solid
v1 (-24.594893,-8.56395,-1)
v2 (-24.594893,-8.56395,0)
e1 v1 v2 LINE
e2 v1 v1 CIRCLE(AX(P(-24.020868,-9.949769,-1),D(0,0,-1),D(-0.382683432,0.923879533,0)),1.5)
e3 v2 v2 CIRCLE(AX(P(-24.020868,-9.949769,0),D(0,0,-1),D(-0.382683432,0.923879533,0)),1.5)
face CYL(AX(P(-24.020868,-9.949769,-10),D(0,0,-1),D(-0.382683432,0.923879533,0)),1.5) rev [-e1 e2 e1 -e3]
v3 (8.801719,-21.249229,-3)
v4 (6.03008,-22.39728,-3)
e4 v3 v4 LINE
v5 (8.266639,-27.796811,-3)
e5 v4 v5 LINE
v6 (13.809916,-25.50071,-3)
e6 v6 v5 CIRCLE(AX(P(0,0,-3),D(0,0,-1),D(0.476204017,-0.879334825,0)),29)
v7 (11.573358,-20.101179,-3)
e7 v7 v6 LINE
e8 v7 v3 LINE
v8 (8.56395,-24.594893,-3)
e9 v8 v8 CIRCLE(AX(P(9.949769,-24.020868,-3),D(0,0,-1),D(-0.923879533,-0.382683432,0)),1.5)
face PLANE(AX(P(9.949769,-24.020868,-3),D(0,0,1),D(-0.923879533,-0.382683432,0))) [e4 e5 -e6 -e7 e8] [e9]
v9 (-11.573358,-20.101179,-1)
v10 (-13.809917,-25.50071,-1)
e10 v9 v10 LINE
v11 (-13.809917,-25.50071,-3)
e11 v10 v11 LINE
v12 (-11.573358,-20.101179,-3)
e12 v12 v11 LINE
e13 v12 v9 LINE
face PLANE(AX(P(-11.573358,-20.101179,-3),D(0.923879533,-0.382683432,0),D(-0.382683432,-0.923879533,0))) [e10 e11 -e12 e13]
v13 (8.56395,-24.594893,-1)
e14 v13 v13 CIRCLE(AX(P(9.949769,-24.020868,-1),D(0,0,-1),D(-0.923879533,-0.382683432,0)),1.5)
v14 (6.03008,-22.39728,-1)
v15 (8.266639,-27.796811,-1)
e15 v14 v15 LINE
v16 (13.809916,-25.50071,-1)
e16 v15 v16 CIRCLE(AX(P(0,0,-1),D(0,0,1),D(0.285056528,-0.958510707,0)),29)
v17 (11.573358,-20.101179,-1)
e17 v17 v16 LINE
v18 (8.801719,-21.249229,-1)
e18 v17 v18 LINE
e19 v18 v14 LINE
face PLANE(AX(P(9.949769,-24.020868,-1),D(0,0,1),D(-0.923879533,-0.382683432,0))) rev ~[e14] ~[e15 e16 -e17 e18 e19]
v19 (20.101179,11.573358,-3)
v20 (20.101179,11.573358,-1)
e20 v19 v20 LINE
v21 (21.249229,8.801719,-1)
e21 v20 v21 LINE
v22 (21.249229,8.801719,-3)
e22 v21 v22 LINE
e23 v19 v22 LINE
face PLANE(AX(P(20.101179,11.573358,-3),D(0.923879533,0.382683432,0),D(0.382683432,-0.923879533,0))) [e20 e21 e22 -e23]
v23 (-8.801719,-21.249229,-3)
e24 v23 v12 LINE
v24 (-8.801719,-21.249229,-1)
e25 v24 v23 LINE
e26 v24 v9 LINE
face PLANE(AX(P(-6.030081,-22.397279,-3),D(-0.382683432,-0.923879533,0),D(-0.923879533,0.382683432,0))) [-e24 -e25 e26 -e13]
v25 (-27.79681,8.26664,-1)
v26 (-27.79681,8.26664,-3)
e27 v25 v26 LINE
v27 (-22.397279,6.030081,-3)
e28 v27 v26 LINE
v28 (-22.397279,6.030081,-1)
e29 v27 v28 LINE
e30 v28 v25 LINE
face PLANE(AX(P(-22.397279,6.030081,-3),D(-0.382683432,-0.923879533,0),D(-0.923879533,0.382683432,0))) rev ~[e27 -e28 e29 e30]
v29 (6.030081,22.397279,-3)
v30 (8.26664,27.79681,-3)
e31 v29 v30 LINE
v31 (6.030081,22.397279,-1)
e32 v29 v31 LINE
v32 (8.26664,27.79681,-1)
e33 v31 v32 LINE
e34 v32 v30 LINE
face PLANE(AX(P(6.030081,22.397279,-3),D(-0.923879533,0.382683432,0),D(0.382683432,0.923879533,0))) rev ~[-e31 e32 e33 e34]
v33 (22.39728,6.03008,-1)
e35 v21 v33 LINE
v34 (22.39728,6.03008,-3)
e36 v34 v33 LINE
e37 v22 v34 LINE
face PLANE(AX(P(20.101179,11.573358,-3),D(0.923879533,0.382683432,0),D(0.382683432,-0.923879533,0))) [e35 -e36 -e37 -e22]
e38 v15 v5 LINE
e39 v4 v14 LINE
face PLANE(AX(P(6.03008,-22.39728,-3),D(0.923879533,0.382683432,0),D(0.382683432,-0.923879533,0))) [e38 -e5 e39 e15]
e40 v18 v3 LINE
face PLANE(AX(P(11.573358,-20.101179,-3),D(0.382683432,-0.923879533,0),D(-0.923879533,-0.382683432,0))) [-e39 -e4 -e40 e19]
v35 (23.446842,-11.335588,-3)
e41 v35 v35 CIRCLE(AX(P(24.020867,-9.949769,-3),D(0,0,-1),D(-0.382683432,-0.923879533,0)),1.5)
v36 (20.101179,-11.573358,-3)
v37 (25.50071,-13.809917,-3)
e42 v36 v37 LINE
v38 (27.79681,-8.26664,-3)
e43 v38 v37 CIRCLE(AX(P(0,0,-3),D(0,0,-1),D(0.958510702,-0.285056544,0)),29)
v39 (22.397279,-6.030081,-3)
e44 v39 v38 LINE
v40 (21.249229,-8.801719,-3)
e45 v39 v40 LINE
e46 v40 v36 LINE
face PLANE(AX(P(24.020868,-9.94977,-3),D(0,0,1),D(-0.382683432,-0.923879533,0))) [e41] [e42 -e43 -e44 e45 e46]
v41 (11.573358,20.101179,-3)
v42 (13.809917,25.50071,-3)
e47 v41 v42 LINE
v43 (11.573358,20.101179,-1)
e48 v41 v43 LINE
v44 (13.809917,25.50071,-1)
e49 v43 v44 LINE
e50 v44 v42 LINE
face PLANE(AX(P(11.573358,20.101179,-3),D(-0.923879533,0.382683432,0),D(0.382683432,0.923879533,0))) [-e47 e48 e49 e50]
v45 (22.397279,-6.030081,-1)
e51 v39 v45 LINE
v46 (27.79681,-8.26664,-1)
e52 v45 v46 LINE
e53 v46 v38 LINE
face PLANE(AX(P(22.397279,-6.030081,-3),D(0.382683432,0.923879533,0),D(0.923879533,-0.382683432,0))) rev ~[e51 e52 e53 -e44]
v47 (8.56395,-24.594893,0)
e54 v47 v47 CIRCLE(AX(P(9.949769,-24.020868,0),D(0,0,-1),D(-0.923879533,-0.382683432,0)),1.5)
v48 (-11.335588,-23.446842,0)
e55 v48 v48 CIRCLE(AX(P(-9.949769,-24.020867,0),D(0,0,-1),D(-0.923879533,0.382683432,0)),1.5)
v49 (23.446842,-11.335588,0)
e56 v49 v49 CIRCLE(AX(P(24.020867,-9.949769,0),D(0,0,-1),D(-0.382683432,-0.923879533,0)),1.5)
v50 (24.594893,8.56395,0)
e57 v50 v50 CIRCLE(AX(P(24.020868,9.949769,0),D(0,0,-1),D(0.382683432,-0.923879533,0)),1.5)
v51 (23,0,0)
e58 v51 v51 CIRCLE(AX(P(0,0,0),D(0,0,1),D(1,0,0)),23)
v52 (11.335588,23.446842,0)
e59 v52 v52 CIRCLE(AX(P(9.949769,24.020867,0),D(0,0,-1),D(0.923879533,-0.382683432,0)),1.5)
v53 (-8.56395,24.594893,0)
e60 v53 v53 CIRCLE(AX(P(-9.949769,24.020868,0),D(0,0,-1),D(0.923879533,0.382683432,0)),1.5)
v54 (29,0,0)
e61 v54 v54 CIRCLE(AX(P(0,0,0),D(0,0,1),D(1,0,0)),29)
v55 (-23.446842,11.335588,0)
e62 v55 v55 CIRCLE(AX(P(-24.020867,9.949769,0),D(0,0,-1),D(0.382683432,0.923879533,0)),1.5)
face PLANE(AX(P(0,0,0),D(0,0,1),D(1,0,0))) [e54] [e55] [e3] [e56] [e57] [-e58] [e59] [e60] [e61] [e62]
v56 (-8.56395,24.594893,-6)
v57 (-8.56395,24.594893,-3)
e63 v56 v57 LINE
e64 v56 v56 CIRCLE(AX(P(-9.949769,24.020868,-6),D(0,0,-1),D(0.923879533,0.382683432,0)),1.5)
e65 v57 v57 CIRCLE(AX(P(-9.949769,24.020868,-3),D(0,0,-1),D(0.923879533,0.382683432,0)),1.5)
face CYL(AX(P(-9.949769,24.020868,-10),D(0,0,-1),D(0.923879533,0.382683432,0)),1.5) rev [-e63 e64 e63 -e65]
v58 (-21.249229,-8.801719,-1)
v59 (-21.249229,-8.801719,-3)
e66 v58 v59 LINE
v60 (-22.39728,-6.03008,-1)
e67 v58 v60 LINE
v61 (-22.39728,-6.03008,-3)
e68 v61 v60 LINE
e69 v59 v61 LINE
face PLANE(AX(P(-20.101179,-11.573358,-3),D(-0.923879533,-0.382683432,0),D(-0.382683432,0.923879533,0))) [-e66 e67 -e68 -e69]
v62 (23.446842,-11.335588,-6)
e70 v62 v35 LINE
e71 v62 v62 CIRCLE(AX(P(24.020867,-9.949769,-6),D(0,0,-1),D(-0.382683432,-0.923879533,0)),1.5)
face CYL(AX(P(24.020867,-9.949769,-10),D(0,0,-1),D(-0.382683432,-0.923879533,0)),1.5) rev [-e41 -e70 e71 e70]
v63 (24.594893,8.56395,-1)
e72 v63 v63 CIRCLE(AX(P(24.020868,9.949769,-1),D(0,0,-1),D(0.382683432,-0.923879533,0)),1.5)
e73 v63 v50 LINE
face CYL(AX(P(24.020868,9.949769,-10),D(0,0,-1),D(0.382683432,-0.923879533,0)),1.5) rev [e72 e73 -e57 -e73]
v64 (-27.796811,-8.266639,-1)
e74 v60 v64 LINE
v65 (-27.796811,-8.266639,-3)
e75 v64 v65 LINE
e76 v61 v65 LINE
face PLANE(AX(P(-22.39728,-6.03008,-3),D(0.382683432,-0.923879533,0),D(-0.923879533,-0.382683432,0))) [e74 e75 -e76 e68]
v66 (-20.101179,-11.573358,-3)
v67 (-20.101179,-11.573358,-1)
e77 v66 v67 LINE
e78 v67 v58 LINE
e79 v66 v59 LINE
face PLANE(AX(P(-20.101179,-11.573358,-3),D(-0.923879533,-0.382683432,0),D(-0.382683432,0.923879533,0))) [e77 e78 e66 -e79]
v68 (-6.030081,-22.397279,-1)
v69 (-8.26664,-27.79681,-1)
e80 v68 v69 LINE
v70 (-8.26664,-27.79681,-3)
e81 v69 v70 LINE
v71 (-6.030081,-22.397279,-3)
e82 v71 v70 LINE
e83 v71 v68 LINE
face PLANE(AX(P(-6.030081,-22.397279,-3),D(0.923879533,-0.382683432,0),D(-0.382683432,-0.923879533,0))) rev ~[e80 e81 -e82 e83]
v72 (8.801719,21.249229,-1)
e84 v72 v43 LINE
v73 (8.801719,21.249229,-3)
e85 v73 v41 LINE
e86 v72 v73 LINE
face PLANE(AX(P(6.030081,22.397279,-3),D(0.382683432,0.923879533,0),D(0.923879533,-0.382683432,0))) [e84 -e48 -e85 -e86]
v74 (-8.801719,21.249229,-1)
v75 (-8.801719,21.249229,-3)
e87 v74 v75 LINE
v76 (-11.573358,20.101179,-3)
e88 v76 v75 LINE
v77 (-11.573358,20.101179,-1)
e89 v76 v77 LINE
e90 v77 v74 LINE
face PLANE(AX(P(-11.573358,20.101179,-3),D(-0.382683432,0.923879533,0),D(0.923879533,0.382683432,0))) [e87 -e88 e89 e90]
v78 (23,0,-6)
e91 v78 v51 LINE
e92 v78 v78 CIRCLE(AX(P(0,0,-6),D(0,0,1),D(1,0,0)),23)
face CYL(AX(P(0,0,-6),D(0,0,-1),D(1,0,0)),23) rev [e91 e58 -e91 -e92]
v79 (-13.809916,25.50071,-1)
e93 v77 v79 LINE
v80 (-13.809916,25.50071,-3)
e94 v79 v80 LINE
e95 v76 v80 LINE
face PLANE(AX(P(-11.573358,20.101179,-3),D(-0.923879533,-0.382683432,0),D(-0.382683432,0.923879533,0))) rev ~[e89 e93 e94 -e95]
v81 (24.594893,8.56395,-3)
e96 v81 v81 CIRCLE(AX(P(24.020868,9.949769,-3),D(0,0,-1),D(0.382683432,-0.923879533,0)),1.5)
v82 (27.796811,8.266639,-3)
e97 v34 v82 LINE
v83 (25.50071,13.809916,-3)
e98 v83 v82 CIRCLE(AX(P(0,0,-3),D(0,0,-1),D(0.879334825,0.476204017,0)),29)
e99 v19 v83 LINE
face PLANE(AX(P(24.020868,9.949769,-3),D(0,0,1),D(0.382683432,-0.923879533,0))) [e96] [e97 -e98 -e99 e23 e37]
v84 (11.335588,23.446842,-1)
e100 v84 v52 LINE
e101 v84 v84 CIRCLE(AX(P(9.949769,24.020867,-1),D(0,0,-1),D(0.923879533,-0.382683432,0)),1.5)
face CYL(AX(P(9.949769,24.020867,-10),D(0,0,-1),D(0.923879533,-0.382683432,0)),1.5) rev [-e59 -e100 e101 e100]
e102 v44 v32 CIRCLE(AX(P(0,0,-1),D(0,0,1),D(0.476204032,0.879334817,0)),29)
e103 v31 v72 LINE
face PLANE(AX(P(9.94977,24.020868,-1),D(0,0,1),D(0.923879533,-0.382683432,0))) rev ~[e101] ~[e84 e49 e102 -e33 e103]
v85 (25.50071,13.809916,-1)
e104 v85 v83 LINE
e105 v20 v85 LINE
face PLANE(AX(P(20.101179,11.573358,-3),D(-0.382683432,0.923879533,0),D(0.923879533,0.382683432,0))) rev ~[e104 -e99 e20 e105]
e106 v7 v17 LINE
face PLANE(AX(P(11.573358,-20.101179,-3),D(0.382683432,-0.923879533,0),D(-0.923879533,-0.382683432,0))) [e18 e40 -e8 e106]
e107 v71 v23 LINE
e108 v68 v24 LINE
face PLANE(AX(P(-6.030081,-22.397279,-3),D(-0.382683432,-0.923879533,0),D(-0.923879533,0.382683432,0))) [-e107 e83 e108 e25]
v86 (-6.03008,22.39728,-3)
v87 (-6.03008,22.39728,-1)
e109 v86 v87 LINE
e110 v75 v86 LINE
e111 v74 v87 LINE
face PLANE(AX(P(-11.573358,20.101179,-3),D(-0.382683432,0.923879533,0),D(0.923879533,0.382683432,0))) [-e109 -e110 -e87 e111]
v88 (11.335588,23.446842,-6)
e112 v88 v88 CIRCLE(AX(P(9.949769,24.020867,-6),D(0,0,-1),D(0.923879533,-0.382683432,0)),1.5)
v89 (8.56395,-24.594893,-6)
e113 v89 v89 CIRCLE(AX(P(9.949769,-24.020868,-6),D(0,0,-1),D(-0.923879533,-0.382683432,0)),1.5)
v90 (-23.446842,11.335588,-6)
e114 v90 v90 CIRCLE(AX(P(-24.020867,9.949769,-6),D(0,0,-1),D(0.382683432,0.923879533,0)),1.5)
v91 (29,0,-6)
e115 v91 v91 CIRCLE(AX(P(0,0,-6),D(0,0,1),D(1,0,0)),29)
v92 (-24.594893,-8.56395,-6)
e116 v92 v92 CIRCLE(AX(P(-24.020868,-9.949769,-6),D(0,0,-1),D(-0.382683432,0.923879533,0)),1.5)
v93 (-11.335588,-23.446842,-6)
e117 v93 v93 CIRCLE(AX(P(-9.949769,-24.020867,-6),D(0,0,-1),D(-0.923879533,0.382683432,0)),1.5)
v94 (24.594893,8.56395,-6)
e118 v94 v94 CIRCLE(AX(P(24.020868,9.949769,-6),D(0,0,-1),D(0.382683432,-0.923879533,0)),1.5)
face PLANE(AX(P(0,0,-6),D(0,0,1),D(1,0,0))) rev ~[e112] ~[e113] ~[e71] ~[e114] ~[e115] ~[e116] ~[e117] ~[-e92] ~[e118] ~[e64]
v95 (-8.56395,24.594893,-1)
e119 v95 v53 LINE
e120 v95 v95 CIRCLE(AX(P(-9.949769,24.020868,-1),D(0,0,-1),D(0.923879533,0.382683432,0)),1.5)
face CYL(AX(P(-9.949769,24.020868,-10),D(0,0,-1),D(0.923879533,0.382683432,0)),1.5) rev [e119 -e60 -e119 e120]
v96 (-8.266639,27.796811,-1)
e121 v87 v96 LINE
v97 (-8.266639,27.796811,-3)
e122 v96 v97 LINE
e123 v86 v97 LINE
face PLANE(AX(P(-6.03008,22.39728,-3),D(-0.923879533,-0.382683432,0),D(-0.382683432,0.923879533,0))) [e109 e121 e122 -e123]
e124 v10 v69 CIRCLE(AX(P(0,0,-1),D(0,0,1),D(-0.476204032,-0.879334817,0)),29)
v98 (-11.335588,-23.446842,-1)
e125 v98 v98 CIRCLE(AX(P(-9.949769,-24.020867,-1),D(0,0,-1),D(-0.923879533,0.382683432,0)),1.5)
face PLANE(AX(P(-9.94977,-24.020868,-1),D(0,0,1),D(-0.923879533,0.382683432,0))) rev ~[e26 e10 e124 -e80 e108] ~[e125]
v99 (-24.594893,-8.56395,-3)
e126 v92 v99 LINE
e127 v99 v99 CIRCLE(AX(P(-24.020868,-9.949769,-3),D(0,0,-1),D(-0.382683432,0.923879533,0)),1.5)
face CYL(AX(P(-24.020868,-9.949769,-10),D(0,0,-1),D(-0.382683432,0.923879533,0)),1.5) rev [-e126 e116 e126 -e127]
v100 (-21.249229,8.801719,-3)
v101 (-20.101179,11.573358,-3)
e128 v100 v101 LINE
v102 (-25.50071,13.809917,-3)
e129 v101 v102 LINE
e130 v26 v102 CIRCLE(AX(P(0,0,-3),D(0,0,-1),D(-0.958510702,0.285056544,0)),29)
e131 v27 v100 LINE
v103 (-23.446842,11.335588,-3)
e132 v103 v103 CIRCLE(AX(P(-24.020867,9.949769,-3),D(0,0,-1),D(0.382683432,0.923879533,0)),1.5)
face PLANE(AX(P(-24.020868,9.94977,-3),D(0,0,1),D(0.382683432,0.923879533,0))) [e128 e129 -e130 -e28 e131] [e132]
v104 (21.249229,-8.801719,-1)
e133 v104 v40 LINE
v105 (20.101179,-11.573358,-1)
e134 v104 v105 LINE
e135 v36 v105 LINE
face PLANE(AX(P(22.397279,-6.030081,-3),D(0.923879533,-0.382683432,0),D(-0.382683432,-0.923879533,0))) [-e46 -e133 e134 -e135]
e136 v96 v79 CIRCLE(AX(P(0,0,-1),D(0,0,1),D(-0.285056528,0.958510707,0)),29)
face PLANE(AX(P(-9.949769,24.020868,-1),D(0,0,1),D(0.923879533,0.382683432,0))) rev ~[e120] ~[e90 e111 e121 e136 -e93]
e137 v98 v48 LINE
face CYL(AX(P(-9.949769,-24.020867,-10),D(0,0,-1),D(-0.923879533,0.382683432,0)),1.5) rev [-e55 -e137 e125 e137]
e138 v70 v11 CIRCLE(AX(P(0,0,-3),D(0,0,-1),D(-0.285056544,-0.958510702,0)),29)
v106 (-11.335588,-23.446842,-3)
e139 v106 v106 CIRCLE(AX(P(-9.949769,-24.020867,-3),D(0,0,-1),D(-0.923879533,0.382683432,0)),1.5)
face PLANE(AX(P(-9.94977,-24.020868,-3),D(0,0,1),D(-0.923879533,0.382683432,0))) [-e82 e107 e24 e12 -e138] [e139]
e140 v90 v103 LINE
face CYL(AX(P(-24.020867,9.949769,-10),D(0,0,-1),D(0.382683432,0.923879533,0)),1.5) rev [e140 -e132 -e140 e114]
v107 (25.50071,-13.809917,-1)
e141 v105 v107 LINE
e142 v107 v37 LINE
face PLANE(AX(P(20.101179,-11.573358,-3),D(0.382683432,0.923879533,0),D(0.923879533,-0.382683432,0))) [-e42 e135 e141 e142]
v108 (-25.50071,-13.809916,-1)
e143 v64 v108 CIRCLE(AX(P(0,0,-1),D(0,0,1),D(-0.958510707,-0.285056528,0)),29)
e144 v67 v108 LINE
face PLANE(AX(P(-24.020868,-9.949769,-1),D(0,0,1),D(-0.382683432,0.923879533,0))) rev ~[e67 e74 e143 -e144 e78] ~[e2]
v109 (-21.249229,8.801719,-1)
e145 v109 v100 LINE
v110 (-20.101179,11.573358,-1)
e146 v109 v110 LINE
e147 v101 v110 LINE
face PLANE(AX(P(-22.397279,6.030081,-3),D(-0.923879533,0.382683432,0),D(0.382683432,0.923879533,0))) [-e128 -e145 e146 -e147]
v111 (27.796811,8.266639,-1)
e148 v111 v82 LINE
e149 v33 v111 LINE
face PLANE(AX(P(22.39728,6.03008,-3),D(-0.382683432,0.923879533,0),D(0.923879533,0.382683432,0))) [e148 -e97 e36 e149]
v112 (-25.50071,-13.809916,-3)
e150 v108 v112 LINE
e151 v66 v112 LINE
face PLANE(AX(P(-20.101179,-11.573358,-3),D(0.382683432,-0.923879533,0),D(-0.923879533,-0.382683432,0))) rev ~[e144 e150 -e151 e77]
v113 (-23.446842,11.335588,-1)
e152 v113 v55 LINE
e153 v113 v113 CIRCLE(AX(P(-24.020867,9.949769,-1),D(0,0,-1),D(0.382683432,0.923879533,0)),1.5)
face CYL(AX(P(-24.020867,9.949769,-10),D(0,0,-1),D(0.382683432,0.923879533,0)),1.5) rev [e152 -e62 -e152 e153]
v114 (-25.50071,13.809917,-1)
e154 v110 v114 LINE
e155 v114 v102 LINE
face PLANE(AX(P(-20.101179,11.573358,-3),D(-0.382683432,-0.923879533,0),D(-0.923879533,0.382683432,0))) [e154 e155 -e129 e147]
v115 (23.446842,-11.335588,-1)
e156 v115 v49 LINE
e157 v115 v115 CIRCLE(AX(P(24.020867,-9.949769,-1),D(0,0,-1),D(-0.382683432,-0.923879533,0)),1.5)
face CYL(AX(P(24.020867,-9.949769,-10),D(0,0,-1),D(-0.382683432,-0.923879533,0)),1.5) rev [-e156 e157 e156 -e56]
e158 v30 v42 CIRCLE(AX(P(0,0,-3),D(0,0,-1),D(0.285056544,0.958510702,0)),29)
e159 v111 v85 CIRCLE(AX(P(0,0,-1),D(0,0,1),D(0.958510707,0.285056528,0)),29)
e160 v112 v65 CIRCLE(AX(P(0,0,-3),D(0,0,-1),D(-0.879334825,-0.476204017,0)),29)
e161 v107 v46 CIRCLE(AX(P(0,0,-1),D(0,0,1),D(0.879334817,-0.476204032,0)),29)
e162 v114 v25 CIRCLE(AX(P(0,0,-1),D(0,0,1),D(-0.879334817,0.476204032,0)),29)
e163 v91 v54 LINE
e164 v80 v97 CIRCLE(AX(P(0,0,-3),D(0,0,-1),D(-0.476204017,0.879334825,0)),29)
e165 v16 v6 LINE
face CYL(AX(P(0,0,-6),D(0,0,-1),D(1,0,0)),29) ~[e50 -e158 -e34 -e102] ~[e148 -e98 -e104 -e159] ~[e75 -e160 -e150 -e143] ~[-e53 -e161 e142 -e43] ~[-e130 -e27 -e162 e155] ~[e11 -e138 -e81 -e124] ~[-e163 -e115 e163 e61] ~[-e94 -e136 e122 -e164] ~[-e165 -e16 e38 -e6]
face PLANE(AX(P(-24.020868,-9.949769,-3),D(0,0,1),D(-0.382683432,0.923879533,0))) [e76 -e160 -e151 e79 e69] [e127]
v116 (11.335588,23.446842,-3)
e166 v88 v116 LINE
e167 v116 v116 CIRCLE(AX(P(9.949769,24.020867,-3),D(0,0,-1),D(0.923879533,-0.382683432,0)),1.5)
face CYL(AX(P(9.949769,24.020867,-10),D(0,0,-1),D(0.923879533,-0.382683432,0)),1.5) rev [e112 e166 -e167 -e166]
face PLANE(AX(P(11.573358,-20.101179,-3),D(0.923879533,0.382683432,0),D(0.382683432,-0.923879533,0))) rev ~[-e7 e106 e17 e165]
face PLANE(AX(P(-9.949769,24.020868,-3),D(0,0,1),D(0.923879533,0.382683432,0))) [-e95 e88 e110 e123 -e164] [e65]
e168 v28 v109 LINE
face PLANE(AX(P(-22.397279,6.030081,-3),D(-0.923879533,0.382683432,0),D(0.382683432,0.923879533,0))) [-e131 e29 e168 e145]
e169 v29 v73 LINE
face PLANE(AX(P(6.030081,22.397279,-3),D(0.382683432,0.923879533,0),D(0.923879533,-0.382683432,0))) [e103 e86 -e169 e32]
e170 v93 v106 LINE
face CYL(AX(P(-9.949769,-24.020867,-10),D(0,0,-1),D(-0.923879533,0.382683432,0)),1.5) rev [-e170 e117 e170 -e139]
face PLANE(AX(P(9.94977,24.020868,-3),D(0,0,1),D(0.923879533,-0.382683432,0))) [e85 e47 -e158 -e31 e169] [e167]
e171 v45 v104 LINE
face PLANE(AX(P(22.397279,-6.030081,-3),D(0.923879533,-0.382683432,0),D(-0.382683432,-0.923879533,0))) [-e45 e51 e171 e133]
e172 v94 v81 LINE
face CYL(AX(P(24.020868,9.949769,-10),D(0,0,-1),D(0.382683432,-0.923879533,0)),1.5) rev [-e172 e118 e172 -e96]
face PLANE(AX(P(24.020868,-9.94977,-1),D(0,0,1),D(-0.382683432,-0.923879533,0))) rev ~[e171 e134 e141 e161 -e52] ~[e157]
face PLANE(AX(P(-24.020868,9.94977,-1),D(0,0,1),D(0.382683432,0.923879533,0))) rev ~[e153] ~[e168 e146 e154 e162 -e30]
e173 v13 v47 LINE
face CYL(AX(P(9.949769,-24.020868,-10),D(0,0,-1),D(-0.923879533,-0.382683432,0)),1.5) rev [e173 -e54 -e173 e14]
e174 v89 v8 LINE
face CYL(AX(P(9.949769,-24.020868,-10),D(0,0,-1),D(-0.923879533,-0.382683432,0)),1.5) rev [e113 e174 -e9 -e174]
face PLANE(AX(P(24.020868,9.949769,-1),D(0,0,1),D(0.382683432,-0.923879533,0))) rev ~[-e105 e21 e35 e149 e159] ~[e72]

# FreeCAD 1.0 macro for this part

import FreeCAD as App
import Part
import Sketcher


def add_polygon(sketch, points):
    """Adds a closed chain of lines whose ends are joined by coincident constraints."""
    first, n = sketch.GeometryCount, len(points)
    for a, b in zip(points, points[1:] + points[:1]):
        sketch.addGeometry(Part.LineSegment(App.Vector(*a, 0), App.Vector(*b, 0)), False)
    for i in range(n):
        sketch.addConstraint(Sketcher.Constraint("Coincident", first + i, 2, first + (i + 1) % n, 1))

doc = App.newDocument("Part")
body = doc.addObject("PartDesign::Body", "Body")

# Sketch on XY plane
sketch1 = doc.addObject("Sketcher::SketchObject", "Sketch")
body.addObject(sketch1)
sketch1.AttachmentSupport = (doc.XY_Plane, [""])
sketch1.MapMode = "FlatFace"
sketch1.AttachmentOffset = App.Placement(App.Vector(0, 0, -13), App.Rotation())
add_polygon(sketch1, [(-29, -3), (-23, -3), (-23, 3), (-29, 3)])  # lines 0-3
sketch1.addConstraint(Sketcher.Constraint("Horizontal", 0))
sketch1.addConstraint(Sketcher.Constraint("Vertical", 1))
sketch1.addConstraint(Sketcher.Constraint("Horizontal", 2))
sketch1.addConstraint(Sketcher.Constraint("Vertical", 3))
sketch1.addConstraint(Sketcher.Constraint("Equal", 2, 1))
sketch1.addConstraint(Sketcher.Constraint("DistanceX", 0, 1, 0, 2, 6.0))
sketch1.addConstraint(Sketcher.Constraint("DistanceX", 0, 2, -1, 1, 23.0))
sketch1.addConstraint(Sketcher.Constraint("DistanceY", 0, 2, -1, 1, 3.0))
pad1 = doc.addObject("PartDesign::Pad", "Pad")
body.addObject(pad1)
pad1.Profile = sketch1
pad1.Length = 2
body2 = doc.addObject("PartDesign::Body", "Body001")

# Sketch on XY plane
sketch2 = doc.addObject("Sketcher::SketchObject", "Sketch001")
body2.addObject(sketch2)
sketch2.AttachmentSupport = (doc.getObject("XY_Plane001"), [""])
sketch2.MapMode = "FlatFace"
add_polygon(sketch2, [(0, 6), (0, 0), (6, 0), (6, 6)])  # lines 0-3
sketch2.addConstraint(Sketcher.Constraint("Vertical", 0))
sketch2.addConstraint(Sketcher.Constraint("Horizontal", 1))
sketch2.addConstraint(Sketcher.Constraint("Vertical", 2))
sketch2.addConstraint(Sketcher.Constraint("Horizontal", 3))
sketch2.addConstraint(Sketcher.Constraint("Coincident", 0, 2, -1, 1))
sketch2.addConstraint(Sketcher.Constraint("Equal", 3, 0))
sketch2.addConstraint(Sketcher.Constraint("DistanceX", 1, 1, 1, 2, 6.0))
pad2 = doc.addObject("PartDesign::Pad", "Pad001")
body2.addObject(pad2)
pad2.Profile = sketch2
pad2.Length = 2
body3 = doc.addObject("PartDesign::Body", "Body002")
doc.recompute()

body2.Placement = App.Placement(App.Vector(-14.142136, -18.384776, -13), App.Rotation(App.Vector(0, 0, 1), 135))
boolean = doc.addObject("PartDesign::Boolean", "Boolean")
body3.addObject(boolean)
boolean.Type = "Fuse"
boolean.addObjects([body2])
body4 = doc.addObject("PartDesign::Body", "Body003")

# Sketch on XY plane
sketch3 = doc.addObject("Sketcher::SketchObject", "Sketch002")
body4.addObject(sketch3)
sketch3.AttachmentSupport = (doc.getObject("XY_Plane003"), [""])
sketch3.MapMode = "FlatFace"
sketch3.AttachmentOffset = App.Placement(App.Vector(0, 0, -13), App.Rotation())
add_polygon(sketch3, [(3, -29), (3, -23), (-3, -23), (-3, -29)])  # lines 0-3
sketch3.addConstraint(Sketcher.Constraint("Vertical", 0))
sketch3.addConstraint(Sketcher.Constraint("Horizontal", 1))
sketch3.addConstraint(Sketcher.Constraint("Vertical", 2))
sketch3.addConstraint(Sketcher.Constraint("Horizontal", 3))
sketch3.addConstraint(Sketcher.Constraint("Equal", 3, 0))
sketch3.addConstraint(Sketcher.Constraint("DistanceX", 1, 2, 1, 1, 6.0))
sketch3.addConstraint(Sketcher.Constraint("DistanceX", -1, 1, 0, 2, 3.0))
sketch3.addConstraint(Sketcher.Constraint("DistanceY", 0, 2, -1, 1, 23.0))
pad3 = doc.addObject("PartDesign::Pad", "Pad002")
body4.addObject(pad3)
pad3.Profile = sketch3
pad3.Length = 2
body5 = doc.addObject("PartDesign::Body", "Body004")

# Sketch on XY plane
sketch4 = doc.addObject("Sketcher::SketchObject", "Sketch003")
body5.addObject(sketch4)
sketch4.AttachmentSupport = (doc.getObject("XY_Plane004"), [""])
sketch4.MapMode = "FlatFace"
add_polygon(sketch4, [(0, 6), (0, 0), (6, 0), (6, 6)])  # lines 0-3
sketch4.addConstraint(Sketcher.Constraint("Vertical", 0))
sketch4.addConstraint(Sketcher.Constraint("Horizontal", 1))
sketch4.addConstraint(Sketcher.Constraint("Vertical", 2))
sketch4.addConstraint(Sketcher.Constraint("Horizontal", 3))
sketch4.addConstraint(Sketcher.Constraint("Coincident", 0, 2, -1, 1))
sketch4.addConstraint(Sketcher.Constraint("Equal", 3, 0))
sketch4.addConstraint(Sketcher.Constraint("DistanceX", 1, 1, 1, 2, 6.0))
pad4 = doc.addObject("PartDesign::Pad", "Pad003")
body5.addObject(pad4)
pad4.Profile = sketch4
pad4.Length = 2
body6 = doc.addObject("PartDesign::Body", "Body005")
doc.recompute()

body5.Placement = App.Placement(App.Vector(18.384776, -14.142136, -13), App.Rotation(App.Vector(0, 0, 1), 225))
boolean2 = doc.addObject("PartDesign::Boolean", "Boolean001")
body6.addObject(boolean2)
boolean2.Type = "Fuse"
boolean2.addObjects([body5])
body7 = doc.addObject("PartDesign::Body", "Body006")

# Sketch on XY plane
sketch5 = doc.addObject("Sketcher::SketchObject", "Sketch004")
body7.addObject(sketch5)
sketch5.AttachmentSupport = (doc.getObject("XY_Plane006"), [""])
sketch5.MapMode = "FlatFace"
sketch5.AttachmentOffset = App.Placement(App.Vector(0, 0, -13), App.Rotation())
add_polygon(sketch5, [(29, 3), (23, 3), (23, -3), (29, -3)])  # lines 0-3
sketch5.addConstraint(Sketcher.Constraint("Horizontal", 0))
sketch5.addConstraint(Sketcher.Constraint("Vertical", 1))
sketch5.addConstraint(Sketcher.Constraint("Horizontal", 2))
sketch5.addConstraint(Sketcher.Constraint("Vertical", 3))
sketch5.addConstraint(Sketcher.Constraint("Equal", 2, 1))
sketch5.addConstraint(Sketcher.Constraint("DistanceX", 0, 2, 0, 1, 6.0))
sketch5.addConstraint(Sketcher.Constraint("DistanceX", -1, 1, 0, 2, 23.0))
sketch5.addConstraint(Sketcher.Constraint("DistanceY", -1, 1, 0, 2, 3.0))
pad5 = doc.addObject("PartDesign::Pad", "Pad004")
body7.addObject(pad5)
pad5.Profile = sketch5
pad5.Length = 2
body8 = doc.addObject("PartDesign::Body", "Body007")

# Sketch on XY plane
sketch6 = doc.addObject("Sketcher::SketchObject", "Sketch005")
body8.addObject(sketch6)
sketch6.AttachmentSupport = (doc.getObject("XY_Plane007"), [""])
sketch6.MapMode = "FlatFace"
add_polygon(sketch6, [(0, 6), (0, 0), (6, 0), (6, 6)])  # lines 0-3
sketch6.addConstraint(Sketcher.Constraint("Vertical", 0))
sketch6.addConstraint(Sketcher.Constraint("Horizontal", 1))
sketch6.addConstraint(Sketcher.Constraint("Vertical", 2))
sketch6.addConstraint(Sketcher.Constraint("Horizontal", 3))
sketch6.addConstraint(Sketcher.Constraint("Coincident", 0, 2, -1, 1))
sketch6.addConstraint(Sketcher.Constraint("Equal", 3, 0))
sketch6.addConstraint(Sketcher.Constraint("DistanceX", 1, 1, 1, 2, 6.0))
pad6 = doc.addObject("PartDesign::Pad", "Pad005")
body8.addObject(pad6)
pad6.Profile = sketch6
pad6.Length = 2
body9 = doc.addObject("PartDesign::Body", "Body008")
doc.recompute()

body8.Placement = App.Placement(App.Vector(14.142136, 18.384776, -13), App.Rotation(App.Vector(0, 0, -1), 45))
boolean3 = doc.addObject("PartDesign::Boolean", "Boolean002")
body9.addObject(boolean3)
boolean3.Type = "Fuse"
boolean3.addObjects([body8])
body10 = doc.addObject("PartDesign::Body", "Body009")

# Sketch on XY plane
sketch7 = doc.addObject("Sketcher::SketchObject", "Sketch006")
body10.addObject(sketch7)
sketch7.AttachmentSupport = (doc.getObject("XY_Plane009"), [""])
sketch7.MapMode = "FlatFace"
sketch7.AttachmentOffset = App.Placement(App.Vector(0, 0, -13), App.Rotation())
add_polygon(sketch7, [(-3, 29), (-3, 23), (3, 23), (3, 29)])  # lines 0-3
sketch7.addConstraint(Sketcher.Constraint("Vertical", 0))
sketch7.addConstraint(Sketcher.Constraint("Horizontal", 1))
sketch7.addConstraint(Sketcher.Constraint("Vertical", 2))
sketch7.addConstraint(Sketcher.Constraint("Horizontal", 3))
sketch7.addConstraint(Sketcher.Constraint("Equal", 3, 0))
sketch7.addConstraint(Sketcher.Constraint("DistanceX", 1, 1, 1, 2, 6.0))
sketch7.addConstraint(Sketcher.Constraint("DistanceX", 0, 2, -1, 1, 3.0))
sketch7.addConstraint(Sketcher.Constraint("DistanceY", -1, 1, 0, 2, 23.0))
pad7 = doc.addObject("PartDesign::Pad", "Pad006")
body10.addObject(pad7)
pad7.Profile = sketch7
pad7.Length = 2
body11 = doc.addObject("PartDesign::Body", "Body010")

# Sketch on XY plane
sketch8 = doc.addObject("Sketcher::SketchObject", "Sketch007")
body11.addObject(sketch8)
sketch8.AttachmentSupport = (doc.getObject("XY_Plane010"), [""])
sketch8.MapMode = "FlatFace"
add_polygon(sketch8, [(0, 6), (0, 0), (6, 0), (6, 6)])  # lines 0-3
sketch8.addConstraint(Sketcher.Constraint("Vertical", 0))
sketch8.addConstraint(Sketcher.Constraint("Horizontal", 1))
sketch8.addConstraint(Sketcher.Constraint("Vertical", 2))
sketch8.addConstraint(Sketcher.Constraint("Horizontal", 3))
sketch8.addConstraint(Sketcher.Constraint("Coincident", 0, 2, -1, 1))
sketch8.addConstraint(Sketcher.Constraint("Equal", 3, 0))
sketch8.addConstraint(Sketcher.Constraint("DistanceX", 1, 1, 1, 2, 6.0))
pad8 = doc.addObject("PartDesign::Pad", "Pad007")
body11.addObject(pad8)
pad8.Profile = sketch8
pad8.Length = 2
body12 = doc.addObject("PartDesign::Body", "Body011")
body12.AllowCompound = True
doc.recompute()

body11.Placement = App.Placement(App.Vector(-18.384776, 14.142136, -13), App.Rotation(App.Vector(0, 0, 1), 45))
boolean4 = doc.addObject("PartDesign::Boolean", "Boolean003")
body12.addObject(boolean4)
boolean4.Type = "Fuse"
boolean4.addObjects([body11])
doc.recompute()

boolean5 = doc.addObject("PartDesign::Boolean", "Boolean004")
body12.addObject(boolean5)
boolean5.Type = "Fuse"
boolean5.addObjects([body])
doc.recompute()

boolean6 = doc.addObject("PartDesign::Boolean", "Boolean005")
body12.addObject(boolean6)
boolean6.Type = "Fuse"
boolean6.addObjects([body3])
doc.recompute()

boolean7 = doc.addObject("PartDesign::Boolean", "Boolean006")
body12.addObject(boolean7)
boolean7.Type = "Fuse"
boolean7.addObjects([body4])
doc.recompute()

boolean8 = doc.addObject("PartDesign::Boolean", "Boolean007")
body12.addObject(boolean8)
boolean8.Type = "Fuse"
boolean8.addObjects([body6])
doc.recompute()

boolean9 = doc.addObject("PartDesign::Boolean", "Boolean008")
body12.addObject(boolean9)
boolean9.Type = "Fuse"
boolean9.addObjects([body7])
doc.recompute()

boolean10 = doc.addObject("PartDesign::Boolean", "Boolean009")
body12.addObject(boolean10)
boolean10.Type = "Fuse"
boolean10.addObjects([body9])
doc.recompute()

boolean11 = doc.addObject("PartDesign::Boolean", "Boolean010")
body12.addObject(boolean11)
boolean11.Type = "Fuse"
boolean11.addObjects([body10])
body13 = doc.addObject("PartDesign::Body", "Body012")
body13.AllowCompound = True
doc.recompute()

body12.Placement = App.Placement(App.Vector(0, 0, 0), App.Rotation(App.Vector(0, 0, 1), 22.5))
boolean12 = doc.addObject("PartDesign::Boolean", "Boolean011")
body13.addObject(boolean12)
boolean12.Type = "Fuse"
boolean12.addObjects([body12])
body14 = doc.addObject("PartDesign::Body", "Body013")

# Sketch on XY plane
sketch9 = doc.addObject("Sketcher::SketchObject", "Sketch008")
body14.addObject(sketch9)
sketch9.AttachmentSupport = (doc.getObject("XY_Plane013"), [""])
sketch9.MapMode = "FlatFace"
sketch9.addGeometry(Part.Circle(App.Vector(0, 0, 0), App.Vector(0, 0, 1), 1.5), False)
sketch9.addConstraint(Sketcher.Constraint("Coincident", 0, 3, -1, 1))
sketch9.addConstraint(Sketcher.Constraint("Diameter", 0, 3.0))
pad9 = doc.addObject("PartDesign::Pad", "Pad008")
body14.addObject(pad9)
pad9.Profile = sketch9
pad9.Length = 15
body15 = doc.addObject("PartDesign::Body", "Body014")
doc.recompute()

body14.Placement = App.Placement(App.Vector(-18.384776, 18.384776, -20), App.Rotation(App.Vector(0, 0, 1), 45))
boolean13 = doc.addObject("PartDesign::Boolean", "Boolean012")
body15.addObject(boolean13)
boolean13.Type = "Fuse"
boolean13.addObjects([body14])
body16 = doc.addObject("PartDesign::Body", "Body015")

# Sketch on XY plane
sketch10 = doc.addObject("Sketcher::SketchObject", "Sketch009")
body16.addObject(sketch10)
sketch10.AttachmentSupport = (doc.getObject("XY_Plane015"), [""])
sketch10.MapMode = "FlatFace"
sketch10.AttachmentOffset = App.Placement(App.Vector(0, 0, -20), App.Rotation())
sketch10.addGeometry(Part.Circle(App.Vector(-26, 0, 0), App.Vector(0, 0, 1), 1.5), False)
sketch10.addConstraint(Sketcher.Constraint("PointOnObject", 0, 3, -1))
sketch10.addConstraint(Sketcher.Constraint("Diameter", 0, 3.0))
sketch10.addConstraint(Sketcher.Constraint("DistanceX", 0, 3, -1, 1, 26.0))
pad10 = doc.addObject("PartDesign::Pad", "Pad009")
body16.addObject(pad10)
pad10.Profile = sketch10
pad10.Length = 15
body17 = doc.addObject("PartDesign::Body", "Body016")

# Sketch on XY plane
sketch11 = doc.addObject("Sketcher::SketchObject", "Sketch010")
body17.addObject(sketch11)
sketch11.AttachmentSupport = (doc.getObject("XY_Plane016"), [""])
sketch11.MapMode = "FlatFace"
sketch11.addGeometry(Part.Circle(App.Vector(0, 0, 0), App.Vector(0, 0, 1), 1.5), False)
sketch11.addConstraint(Sketcher.Constraint("Coincident", 0, 3, -1, 1))
sketch11.addConstraint(Sketcher.Constraint("Diameter", 0, 3.0))
pad11 = doc.addObject("PartDesign::Pad", "Pad010")
body17.addObject(pad11)
pad11.Profile = sketch11
pad11.Length = 15
body18 = doc.addObject("PartDesign::Body", "Body017")
doc.recompute()

body17.Placement = App.Placement(App.Vector(-18.384776, -18.384776, -20), App.Rotation(App.Vector(0, 0, 1), 135))
boolean14 = doc.addObject("PartDesign::Boolean", "Boolean013")
body18.addObject(boolean14)
boolean14.Type = "Fuse"
boolean14.addObjects([body17])
body19 = doc.addObject("PartDesign::Body", "Body018")

# Sketch on XY plane
sketch12 = doc.addObject("Sketcher::SketchObject", "Sketch011")
body19.addObject(sketch12)
sketch12.AttachmentSupport = (doc.getObject("XY_Plane018"), [""])
sketch12.MapMode = "FlatFace"
sketch12.AttachmentOffset = App.Placement(App.Vector(0, 0, -20), App.Rotation())
sketch12.addGeometry(Part.Circle(App.Vector(0, -26, 0), App.Vector(0, 0, 1), 1.5), False)
sketch12.addConstraint(Sketcher.Constraint("PointOnObject", 0, 3, -2))
sketch12.addConstraint(Sketcher.Constraint("Diameter", 0, 3.0))
sketch12.addConstraint(Sketcher.Constraint("DistanceY", 0, 3, -1, 1, 26.0))
pad12 = doc.addObject("PartDesign::Pad", "Pad011")
body19.addObject(pad12)
pad12.Profile = sketch12
pad12.Length = 15
body20 = doc.addObject("PartDesign::Body", "Body019")

# Sketch on XY plane
sketch13 = doc.addObject("Sketcher::SketchObject", "Sketch012")
body20.addObject(sketch13)
sketch13.AttachmentSupport = (doc.getObject("XY_Plane019"), [""])
sketch13.MapMode = "FlatFace"
sketch13.addGeometry(Part.Circle(App.Vector(0, 0, 0), App.Vector(0, 0, 1), 1.5), False)
sketch13.addConstraint(Sketcher.Constraint("Coincident", 0, 3, -1, 1))
sketch13.addConstraint(Sketcher.Constraint("Diameter", 0, 3.0))
pad13 = doc.addObject("PartDesign::Pad", "Pad012")
body20.addObject(pad13)
pad13.Profile = sketch13
pad13.Length = 15
body21 = doc.addObject("PartDesign::Body", "Body020")
doc.recompute()

body20.Placement = App.Placement(App.Vector(18.384776, -18.384776, -20), App.Rotation(App.Vector(0, 0, 1), 225))
boolean15 = doc.addObject("PartDesign::Boolean", "Boolean014")
body21.addObject(boolean15)
boolean15.Type = "Fuse"
boolean15.addObjects([body20])
body22 = doc.addObject("PartDesign::Body", "Body021")

# Sketch on XY plane
sketch14 = doc.addObject("Sketcher::SketchObject", "Sketch013")
body22.addObject(sketch14)
sketch14.AttachmentSupport = (doc.getObject("XY_Plane021"), [""])
sketch14.MapMode = "FlatFace"
sketch14.AttachmentOffset = App.Placement(App.Vector(0, 0, -20), App.Rotation())
sketch14.addGeometry(Part.Circle(App.Vector(26, 0, 0), App.Vector(0, 0, 1), 1.5), False)
sketch14.addConstraint(Sketcher.Constraint("PointOnObject", 0, 3, -1))
sketch14.addConstraint(Sketcher.Constraint("Diameter", 0, 3.0))
sketch14.addConstraint(Sketcher.Constraint("DistanceX", -1, 1, 0, 3, 26.0))
pad14 = doc.addObject("PartDesign::Pad", "Pad013")
body22.addObject(pad14)
pad14.Profile = sketch14
pad14.Length = 15
body23 = doc.addObject("PartDesign::Body", "Body022")

# Sketch on XY plane
sketch15 = doc.addObject("Sketcher::SketchObject", "Sketch014")
body23.addObject(sketch15)
sketch15.AttachmentSupport = (doc.getObject("XY_Plane022"), [""])
sketch15.MapMode = "FlatFace"
sketch15.addGeometry(Part.Circle(App.Vector(0, 0, 0), App.Vector(0, 0, 1), 1.5), False)
sketch15.addConstraint(Sketcher.Constraint("Coincident", 0, 3, -1, 1))
sketch15.addConstraint(Sketcher.Constraint("Diameter", 0, 3.0))
pad15 = doc.addObject("PartDesign::Pad", "Pad014")
body23.addObject(pad15)
pad15.Profile = sketch15
pad15.Length = 15
body24 = doc.addObject("PartDesign::Body", "Body023")
doc.recompute()

body23.Placement = App.Placement(App.Vector(18.384776, 18.384776, -20), App.Rotation(App.Vector(0, 0, -1), 45))
boolean16 = doc.addObject("PartDesign::Boolean", "Boolean015")
body24.addObject(boolean16)
boolean16.Type = "Fuse"
boolean16.addObjects([body23])
body25 = doc.addObject("PartDesign::Body", "Body024")
body25.AllowCompound = True

# Sketch on XY plane
sketch16 = doc.addObject("Sketcher::SketchObject", "Sketch015")
body25.addObject(sketch16)
sketch16.AttachmentSupport = (doc.getObject("XY_Plane024"), [""])
sketch16.MapMode = "FlatFace"
sketch16.AttachmentOffset = App.Placement(App.Vector(0, 0, -20), App.Rotation())
sketch16.addGeometry(Part.Circle(App.Vector(0, 26, 0), App.Vector(0, 0, 1), 1.5), False)
sketch16.addConstraint(Sketcher.Constraint("PointOnObject", 0, 3, -2))
sketch16.addConstraint(Sketcher.Constraint("Diameter", 0, 3.0))
sketch16.addConstraint(Sketcher.Constraint("DistanceY", -1, 1, 0, 3, 26.0))
pad16 = doc.addObject("PartDesign::Pad", "Pad015")
body25.addObject(pad16)
pad16.Profile = sketch16
pad16.Length = 15
doc.recompute()

boolean17 = doc.addObject("PartDesign::Boolean", "Boolean016")
body25.addObject(boolean17)
boolean17.Type = "Fuse"
boolean17.addObjects([body15])
doc.recompute()

boolean18 = doc.addObject("PartDesign::Boolean", "Boolean017")
body25.addObject(boolean18)
boolean18.Type = "Fuse"
boolean18.addObjects([body16])
doc.recompute()

boolean19 = doc.addObject("PartDesign::Boolean", "Boolean018")
body25.addObject(boolean19)
boolean19.Type = "Fuse"
boolean19.addObjects([body18])
doc.recompute()

boolean20 = doc.addObject("PartDesign::Boolean", "Boolean019")
body25.addObject(boolean20)
boolean20.Type = "Fuse"
boolean20.addObjects([body19])
doc.recompute()

boolean21 = doc.addObject("PartDesign::Boolean", "Boolean020")
body25.addObject(boolean21)
boolean21.Type = "Fuse"
boolean21.addObjects([body21])
doc.recompute()

boolean22 = doc.addObject("PartDesign::Boolean", "Boolean021")
body25.addObject(boolean22)
boolean22.Type = "Fuse"
boolean22.addObjects([body22])
doc.recompute()

boolean23 = doc.addObject("PartDesign::Boolean", "Boolean022")
body25.addObject(boolean23)
boolean23.Type = "Fuse"
boolean23.addObjects([body24])
body26 = doc.addObject("PartDesign::Body", "Body025")
body26.AllowCompound = True
doc.recompute()

body25.Placement = App.Placement(App.Vector(0, 0, 0), App.Rotation(App.Vector(0, 0, 1), 22.5))
boolean24 = doc.addObject("PartDesign::Boolean", "Boolean023")
body26.addObject(boolean24)
boolean24.Type = "Fuse"
boolean24.addObjects([body25])
body27 = doc.addObject("PartDesign::Body", "Body026")

# Sketch on XY plane
sketch17 = doc.addObject("Sketcher::SketchObject", "Sketch016")
body27.addObject(sketch17)
sketch17.AttachmentSupport = (doc.getObject("XY_Plane026"), [""])
sketch17.MapMode = "FlatFace"
sketch17.AttachmentOffset = App.Placement(App.Vector(0, 0, -16), App.Rotation())
sketch17.addGeometry(Part.Circle(App.Vector(0, 0, 0), App.Vector(0, 0, 1), 29), False)
sketch17.addGeometry(Part.Circle(App.Vector(0, 0, 0), App.Vector(0, 0, 1), 23), False)
sketch17.addConstraint(Sketcher.Constraint("Coincident", 0, 3, -1, 1))
sketch17.addConstraint(Sketcher.Constraint("Coincident", 1, 3, -1, 1))
sketch17.addConstraint(Sketcher.Constraint("Diameter", 0, 58.0))
sketch17.addConstraint(Sketcher.Constraint("Diameter", 1, 46.0))
pad17 = doc.addObject("PartDesign::Pad", "Pad016")
body27.addObject(pad17)
pad17.Profile = sketch17
pad17.Length = 6
doc.recompute()

boolean25 = doc.addObject("PartDesign::Boolean", "Boolean024")
body27.addObject(boolean25)
boolean25.Type = "Cut"
boolean25.addObjects([body26])
doc.recompute()

boolean26 = doc.addObject("PartDesign::Boolean", "Boolean025")
body27.addObject(boolean26)
boolean26.Type = "Cut"
boolean26.addObjects([body13])
body28 = doc.addObject("PartDesign::Body", "Body027")
doc.recompute()

body27.Placement = App.Placement(App.Vector(0, 0, 10), App.Rotation(App.Vector(0, 0, 1), 0))
boolean27 = doc.addObject("PartDesign::Boolean", "Boolean026")
body28.addObject(boolean27)
boolean27.Type = "Fuse"
boolean27.addObjects([body27])

doc.recompute()
